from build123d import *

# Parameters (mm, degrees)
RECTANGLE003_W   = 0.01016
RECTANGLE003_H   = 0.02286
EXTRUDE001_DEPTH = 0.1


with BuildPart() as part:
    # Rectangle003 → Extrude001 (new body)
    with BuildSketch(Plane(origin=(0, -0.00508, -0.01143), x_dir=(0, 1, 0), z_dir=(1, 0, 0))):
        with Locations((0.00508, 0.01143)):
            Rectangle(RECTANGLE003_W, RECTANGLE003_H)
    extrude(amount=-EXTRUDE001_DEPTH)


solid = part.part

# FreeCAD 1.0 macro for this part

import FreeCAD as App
import Part
import Sketcher
from FreeCAD import Vector
Q = App.Units.Quantity


def add_polygon(sketch, points):
    """Adds a closed chain of lines whose ends are joined by coincident constraints."""
    first, n = sketch.GeometryCount, len(points)
    for a, b in zip(points, points[1:] + points[:1]):
        sketch.addGeometry(Part.LineSegment(App.Vector(*a, 0), App.Vector(*b, 0)), False)
    for i in range(n):
        sketch.addConstraint(Sketcher.Constraint("Coincident", first + i, 2, first + (i + 1) % n, 1))

doc = App.newDocument("Part")
params = doc.addObject("Spreadsheet::Sheet", "Params")
for row, (alias, value) in enumerate([
    ("pad1_length", "0.1 mm"),
], start=1):
    params.set(f"A{row}", alias)
    params.set(f"B{row}", "=" + value)
    params.setAlias(f"B{row}", alias)

body = doc.addObject("PartDesign::Body", "Body")

# Sketch on YZ plane
sketch1 = body.newObject("Sketcher::SketchObject", "Sketch")
sketch1.AttachmentSupport = (doc.getObject("YZ_Plane"), [""])
sketch1.MapMode = "FlatFace"
add_polygon(sketch1, [(-0.00508, 0.01143), (-0.00508, -0.01143), (0.00508, -0.01143), (0.00508, 0.01143)])  # lines 0-3
sketch1.addConstraint(Sketcher.Constraint("Vertical", 0))
sketch1.addConstraint(Sketcher.Constraint("Horizontal", 1))
sketch1.addConstraint(Sketcher.Constraint("Vertical", 2))
sketch1.addConstraint(Sketcher.Constraint("Horizontal", 3))
sketch1.addConstraint(Sketcher.Constraint("Symmetric", 0, 2, 2, 2, -1, 1))
sketch1.addConstraint(Sketcher.Constraint("DistanceX", 1, 1, 1, 2, Q("0.01016 mm")))
sketch1.addConstraint(Sketcher.Constraint("DistanceY", 0, 2, 0, 1, Q("0.02286 mm")))
pad1 = body.newObject("PartDesign::Pad", "Pad")
pad1.Profile = sketch1
pad1.setExpression("Length", "Params.pad1_length")
pad1.Reversed = True

doc.recompute()
